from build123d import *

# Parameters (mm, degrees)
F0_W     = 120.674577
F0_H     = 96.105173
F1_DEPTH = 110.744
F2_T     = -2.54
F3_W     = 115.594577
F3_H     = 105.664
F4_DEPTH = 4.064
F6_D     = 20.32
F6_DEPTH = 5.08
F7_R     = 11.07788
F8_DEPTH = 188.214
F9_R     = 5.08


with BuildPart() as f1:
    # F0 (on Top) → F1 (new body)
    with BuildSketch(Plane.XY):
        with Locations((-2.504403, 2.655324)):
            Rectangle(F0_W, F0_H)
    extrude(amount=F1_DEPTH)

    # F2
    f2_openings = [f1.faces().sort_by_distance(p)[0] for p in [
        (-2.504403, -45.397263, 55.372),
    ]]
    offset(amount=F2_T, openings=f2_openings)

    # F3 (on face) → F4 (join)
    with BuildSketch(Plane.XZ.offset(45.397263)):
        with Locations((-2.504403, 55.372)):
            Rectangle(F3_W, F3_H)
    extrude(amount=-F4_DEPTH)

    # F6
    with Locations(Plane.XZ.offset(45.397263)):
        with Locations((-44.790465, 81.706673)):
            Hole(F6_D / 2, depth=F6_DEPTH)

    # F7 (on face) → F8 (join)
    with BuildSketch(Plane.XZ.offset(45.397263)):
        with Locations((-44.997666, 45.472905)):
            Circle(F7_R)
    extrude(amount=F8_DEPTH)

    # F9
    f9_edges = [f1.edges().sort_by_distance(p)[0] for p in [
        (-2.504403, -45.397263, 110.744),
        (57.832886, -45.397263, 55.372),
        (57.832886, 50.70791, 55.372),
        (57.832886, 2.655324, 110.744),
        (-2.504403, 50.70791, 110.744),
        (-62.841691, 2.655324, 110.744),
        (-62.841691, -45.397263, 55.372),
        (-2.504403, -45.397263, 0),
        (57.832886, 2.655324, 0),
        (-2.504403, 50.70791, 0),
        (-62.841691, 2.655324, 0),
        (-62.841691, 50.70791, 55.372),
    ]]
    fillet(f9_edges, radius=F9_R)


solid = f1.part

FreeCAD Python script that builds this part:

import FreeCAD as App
import Part
import Sketcher

V = App.Vector
Q = App.Units.Quantity


def edges_at(feature, points):
    """Names of the edges that pass closest to the given points."""
    edges = feature.Shape.Edges
    near = lambda p: min(range(len(edges)), key=lambda i: edges[i].distToShape(Part.Vertex(*p))[0])
    return sorted({f"Edge{near(p) + 1}" for p in points})


def faces_at(feature, points):
    """Names of the faces that lie closest to the given points."""
    faces = feature.Shape.Faces
    near = lambda p: min(range(len(faces)), key=lambda i: faces[i].distToShape(Part.Vertex(*p))[0])
    return sorted({f"Face{near(p) + 1}" for p in points})

doc = App.newDocument("Part")
params = doc.addObject("Spreadsheet::Sheet", "Params")
for row, (alias, value) in enumerate([
    ("pad1_length", "4.36 in"),
    ("thickness_wall", "0.1 in"),
    ("sketch2_height", "4.16 in"),
    ("pad2_length", "0.16 in"),
    ("sketch3_diameter", "0.8 in"),
    ("hole_diameter", "0.8 in"),
    ("hole_depth", "0.2 in"),
    ("pad3_length", "7.41 in"),
    ("fillet_radius", "0.2 in"),
], start=1):
    params.set(f"A{row}", alias)
    params.set(f"B{row}", "=" + value)
    params.setAlias(f"B{row}", alias)

body = doc.addObject("PartDesign::Body", "Body")

sketch1 = doc.addObject("Sketcher::SketchObject", "Sketch")
body.addObject(sketch1)
sketch1.AttachmentSupport = (doc.XY_Plane, [""])
sketch1.MapMode = "FlatFace"
sketch1.addGeometry([
    Part.LineSegment(V(-63, 51, 0), V(-63, -45, 0)),
    Part.LineSegment(V(-63, -45, 0), V(58, -45, 0)),
    Part.LineSegment(V(58, -45, 0), V(58, 51, 0)),
    Part.LineSegment(V(58, 51, 0), V(-63, 51, 0)),
], False)
sketch1.addConstraint([
    Sketcher.Constraint("Coincident", 0, 2, 1, 1),
    Sketcher.Constraint("Coincident", 1, 2, 2, 1),
    Sketcher.Constraint("Coincident", 2, 2, 3, 1),
    Sketcher.Constraint("Coincident", 3, 2, 0, 1),
    Sketcher.Constraint("Vertical", 0),
    Sketcher.Constraint("Horizontal", 1),
    Sketcher.Constraint("Vertical", 2),
    Sketcher.Constraint("Horizontal", 3),
    Sketcher.Constraint("DistanceX", 1, 1, 1, 2, 120.674577),
    Sketcher.Constraint("DistanceY", 0, 2, 0, 1, 96.105173),
    Sketcher.Constraint("DistanceX", 0, 2, -1, 1, 62.841692),
    Sketcher.Constraint("DistanceY", -1, 1, 2, 2, 50.70791),
])
pad1 = doc.addObject("PartDesign::Pad", "Pad")
body.addObject(pad1)
pad1.Profile = sketch1
pad1.setExpression("Length", "Params.pad1_length")
doc.recompute()

thickness = doc.addObject("PartDesign::Thickness", "Thickness")
body.addObject(thickness)
thickness.Base = (pad1, faces_at(pad1, [(-2.504, -45.397, 55.372)]))
thickness.setExpression("Value", "Params.thickness_wall")
thickness.Reversed = True
thickness.Join = "Arc"

sketch2 = doc.addObject("Sketcher::SketchObject", "Sketch001")
body.addObject(sketch2)
sketch2.AttachmentSupport = (doc.XZ_Plane, [""])
sketch2.MapMode = "FlatFace"
sketch2.AttachmentOffset = App.Placement(V(0, 0, 45.397263), App.Rotation())
sketch2.addGeometry([
    Part.LineSegment(V(-60, 108, 0), V(-60, 3, 0)),
    Part.LineSegment(V(-60, 3, 0), V(55, 3, 0)),
    Part.LineSegment(V(55, 3, 0), V(55, 108, 0)),
    Part.LineSegment(V(55, 108, 0), V(-60, 108, 0)),
], False)
sketch2.addConstraint([
    Sketcher.Constraint("Coincident", 0, 2, 1, 1),
    Sketcher.Constraint("Coincident", 1, 2, 2, 1),
    Sketcher.Constraint("Coincident", 2, 2, 3, 1),
    Sketcher.Constraint("Coincident", 3, 2, 0, 1),
    Sketcher.Constraint("Vertical", 0),
    Sketcher.Constraint("Horizontal", 1),
    Sketcher.Constraint("Vertical", 2),
    Sketcher.Constraint("Horizontal", 3),
    Sketcher.Constraint("DistanceY", 0, 2, 0, 1, Q("4.16 in")),
    Sketcher.Constraint("DistanceY", -1, 1, 0, 2, Q("0.1 in")),
    Sketcher.Constraint("DistanceX", 1, 1, 1, 2, 115.594577),
    Sketcher.Constraint("DistanceX", 0, 2, -1, 1, 60.301691),
])
sketch2.setExpression("Constraints[8]", "Params.sketch2_height")
pad2 = doc.addObject("PartDesign::Pad", "Pad001")
body.addObject(pad2)
pad2.Profile = sketch2
pad2.setExpression("Length", "Params.pad2_length")
pad2.Reversed = True

sketch3 = doc.addObject("Sketcher::SketchObject", "Sketch002")
body.addObject(sketch3)
sketch3.AttachmentSupport = (doc.XZ_Plane, [""])
sketch3.MapMode = "FlatFace"
sketch3.AttachmentOffset = App.Placement(V(0, 0, 45.397263), App.Rotation())
sketch3.addGeometry(Part.Circle(V(-45, 82, 0), V(0, 0, 1), 10), False)
sketch3.addConstraint([
    Sketcher.Constraint("Diameter", 0, Q("0.8 in")),
    Sketcher.Constraint("DistanceX", 0, 3, -1, 1, 44.790465),
    Sketcher.Constraint("DistanceY", -1, 1, 0, 3, 81.706673),
])
sketch3.setExpression("Constraints[0]", "Params.sketch3_diameter")
doc.recompute()
hole = doc.addObject("PartDesign::Hole", "Hole")
body.addObject(hole)
hole.Profile = sketch3
hole.ThreadType = "None"
hole.setExpression("Diameter", "Params.hole_diameter")
hole.DepthType = "Dimension"
hole.setExpression("Depth", "Params.hole_depth")
hole.DrillPoint = "Flat"

sketch4 = doc.addObject("Sketcher::SketchObject", "Sketch003")
body.addObject(sketch4)
sketch4.AttachmentSupport = (doc.XZ_Plane, [""])
sketch4.MapMode = "FlatFace"
sketch4.AttachmentOffset = App.Placement(V(0, 0, 45.397263), App.Rotation())
sketch4.addGeometry(Part.Circle(V(-45, 45, 0), V(0, 0, 1), 11), False)
sketch4.addConstraint([
    Sketcher.Constraint("Diameter", 0, 22.15576),
    Sketcher.Constraint("DistanceX", 0, 3, -1, 1, 44.997666),
    Sketcher.Constraint("DistanceY", -1, 1, 0, 3, 45.472905),
])
pad3 = doc.addObject("PartDesign::Pad", "Pad002")
body.addObject(pad3)
pad3.Profile = sketch4
pad3.setExpression("Length", "Params.pad3_length")
doc.recompute()

fillet = doc.addObject("PartDesign::Fillet", "Fillet")
body.addObject(fillet)
fillet.Base = (pad3, edges_at(pad3, [
    (-2.504, -45.397, 110.744),
    (57.833, -45.397, 55.372),
    (57.833, 50.708, 55.372),
    (57.833, 2.655, 110.744),
    (-2.504, 50.708, 110.744),
    (-62.842, 2.655, 110.744),
    (-62.842, -45.397, 55.372),
    (-2.504, -45.397, 0),
    (57.833, 2.655, 0),
    (-2.504, 50.708, 0),
    (-62.842, 2.655, 0),
    (-62.842, 50.708, 55.372),
]))
fillet.setExpression("Radius", "Params.fillet_radius")

doc.recompute()
